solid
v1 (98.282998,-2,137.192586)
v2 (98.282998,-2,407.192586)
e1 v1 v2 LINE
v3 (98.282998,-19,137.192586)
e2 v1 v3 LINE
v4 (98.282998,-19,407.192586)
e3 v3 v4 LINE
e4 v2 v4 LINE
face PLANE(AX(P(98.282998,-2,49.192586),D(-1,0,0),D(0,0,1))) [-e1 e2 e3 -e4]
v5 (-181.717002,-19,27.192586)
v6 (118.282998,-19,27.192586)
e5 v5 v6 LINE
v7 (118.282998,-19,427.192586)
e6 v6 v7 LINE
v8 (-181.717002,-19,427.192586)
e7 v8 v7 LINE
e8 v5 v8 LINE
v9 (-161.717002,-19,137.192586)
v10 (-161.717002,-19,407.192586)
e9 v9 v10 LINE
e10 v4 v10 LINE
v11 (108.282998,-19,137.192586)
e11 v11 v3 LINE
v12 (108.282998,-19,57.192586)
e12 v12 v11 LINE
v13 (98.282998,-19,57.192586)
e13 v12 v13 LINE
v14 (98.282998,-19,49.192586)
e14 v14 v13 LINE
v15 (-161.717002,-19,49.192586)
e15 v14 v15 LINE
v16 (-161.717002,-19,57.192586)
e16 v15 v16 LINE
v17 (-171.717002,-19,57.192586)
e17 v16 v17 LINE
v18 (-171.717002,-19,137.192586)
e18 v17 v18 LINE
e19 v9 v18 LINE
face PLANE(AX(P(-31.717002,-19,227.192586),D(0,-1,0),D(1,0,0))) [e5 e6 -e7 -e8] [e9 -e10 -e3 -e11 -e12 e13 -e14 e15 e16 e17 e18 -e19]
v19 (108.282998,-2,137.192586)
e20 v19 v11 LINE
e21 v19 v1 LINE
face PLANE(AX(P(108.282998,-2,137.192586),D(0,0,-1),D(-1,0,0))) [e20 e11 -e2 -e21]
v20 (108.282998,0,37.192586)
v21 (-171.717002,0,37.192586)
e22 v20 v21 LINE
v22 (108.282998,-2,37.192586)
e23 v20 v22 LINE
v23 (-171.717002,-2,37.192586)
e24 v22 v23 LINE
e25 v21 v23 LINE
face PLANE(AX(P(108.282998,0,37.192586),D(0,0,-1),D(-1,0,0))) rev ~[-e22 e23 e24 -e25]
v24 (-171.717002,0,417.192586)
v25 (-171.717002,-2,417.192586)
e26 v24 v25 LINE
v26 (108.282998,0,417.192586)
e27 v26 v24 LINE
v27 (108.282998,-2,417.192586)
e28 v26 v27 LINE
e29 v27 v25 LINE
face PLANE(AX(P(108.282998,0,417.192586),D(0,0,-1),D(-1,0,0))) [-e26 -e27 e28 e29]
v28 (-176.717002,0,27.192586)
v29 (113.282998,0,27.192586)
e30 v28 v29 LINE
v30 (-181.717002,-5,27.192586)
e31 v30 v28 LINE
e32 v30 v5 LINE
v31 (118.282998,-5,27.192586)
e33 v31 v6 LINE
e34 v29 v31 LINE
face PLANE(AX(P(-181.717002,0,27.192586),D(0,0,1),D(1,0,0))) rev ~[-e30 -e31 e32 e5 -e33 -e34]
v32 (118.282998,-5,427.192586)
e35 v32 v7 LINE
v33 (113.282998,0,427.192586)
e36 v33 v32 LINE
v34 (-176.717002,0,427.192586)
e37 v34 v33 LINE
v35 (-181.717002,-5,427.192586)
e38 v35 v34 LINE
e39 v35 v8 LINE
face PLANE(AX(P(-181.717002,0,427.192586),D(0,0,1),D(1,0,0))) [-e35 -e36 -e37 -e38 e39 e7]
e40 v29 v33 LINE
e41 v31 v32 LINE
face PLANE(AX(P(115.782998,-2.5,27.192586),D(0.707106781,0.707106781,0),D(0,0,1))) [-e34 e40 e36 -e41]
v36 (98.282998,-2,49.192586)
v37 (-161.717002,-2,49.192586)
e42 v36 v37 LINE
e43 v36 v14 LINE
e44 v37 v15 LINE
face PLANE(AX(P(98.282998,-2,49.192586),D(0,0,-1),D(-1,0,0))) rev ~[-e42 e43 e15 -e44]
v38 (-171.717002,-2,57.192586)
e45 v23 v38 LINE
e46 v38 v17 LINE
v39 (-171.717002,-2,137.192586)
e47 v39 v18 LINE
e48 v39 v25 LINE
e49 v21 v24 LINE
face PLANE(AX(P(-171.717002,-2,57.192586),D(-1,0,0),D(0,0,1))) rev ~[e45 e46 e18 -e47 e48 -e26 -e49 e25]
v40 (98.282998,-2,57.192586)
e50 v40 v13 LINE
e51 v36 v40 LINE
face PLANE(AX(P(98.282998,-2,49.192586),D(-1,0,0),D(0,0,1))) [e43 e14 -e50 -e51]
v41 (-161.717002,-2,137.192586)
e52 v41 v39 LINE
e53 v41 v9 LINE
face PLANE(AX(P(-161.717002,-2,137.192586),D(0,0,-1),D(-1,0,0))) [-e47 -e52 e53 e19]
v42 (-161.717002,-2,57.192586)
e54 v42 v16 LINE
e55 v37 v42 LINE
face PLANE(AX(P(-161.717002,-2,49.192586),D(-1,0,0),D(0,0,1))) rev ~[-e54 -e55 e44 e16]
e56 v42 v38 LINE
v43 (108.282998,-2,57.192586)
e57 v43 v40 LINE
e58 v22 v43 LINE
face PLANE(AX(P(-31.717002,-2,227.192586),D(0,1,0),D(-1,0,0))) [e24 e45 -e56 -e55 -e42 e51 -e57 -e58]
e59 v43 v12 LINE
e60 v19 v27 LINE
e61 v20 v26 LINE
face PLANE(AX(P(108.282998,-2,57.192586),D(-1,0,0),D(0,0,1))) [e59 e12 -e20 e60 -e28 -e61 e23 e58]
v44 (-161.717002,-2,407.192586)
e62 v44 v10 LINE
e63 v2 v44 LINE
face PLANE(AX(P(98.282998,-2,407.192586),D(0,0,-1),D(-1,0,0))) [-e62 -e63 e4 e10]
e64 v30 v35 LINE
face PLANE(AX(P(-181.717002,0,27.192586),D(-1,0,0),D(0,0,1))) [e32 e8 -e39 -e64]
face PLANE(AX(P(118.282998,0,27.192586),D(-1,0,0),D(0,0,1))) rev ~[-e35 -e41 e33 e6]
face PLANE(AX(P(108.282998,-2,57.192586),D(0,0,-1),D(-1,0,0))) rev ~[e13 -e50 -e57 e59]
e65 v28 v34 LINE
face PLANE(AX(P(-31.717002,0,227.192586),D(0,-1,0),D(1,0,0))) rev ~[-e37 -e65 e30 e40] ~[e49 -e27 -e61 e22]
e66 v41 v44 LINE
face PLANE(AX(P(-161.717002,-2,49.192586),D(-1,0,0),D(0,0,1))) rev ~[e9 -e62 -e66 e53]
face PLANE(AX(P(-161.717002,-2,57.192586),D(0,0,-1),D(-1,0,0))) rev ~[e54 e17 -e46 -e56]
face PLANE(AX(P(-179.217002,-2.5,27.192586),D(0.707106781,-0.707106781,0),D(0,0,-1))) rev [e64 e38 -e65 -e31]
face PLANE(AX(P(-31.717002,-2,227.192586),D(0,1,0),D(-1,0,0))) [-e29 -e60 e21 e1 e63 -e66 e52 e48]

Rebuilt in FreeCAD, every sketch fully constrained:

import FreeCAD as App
import Part
import Sketcher
from FreeCAD import Vector


def edges_at(feature, points):
    """Names of the edges that pass closest to the given points."""
    edges = feature.Shape.Edges
    near = lambda p: min(range(len(edges)), key=lambda i: edges[i].distToShape(Part.Vertex(*p))[0])
    return sorted({f"Edge{near(p) + 1}" for p in points})

doc = App.newDocument("Part")
body = doc.addObject("PartDesign::Body", "Body")

# Sketch on XZ plane
sketch1 = doc.addObject("Sketcher::SketchObject", "Sketch")
body.addObject(sketch1)
sketch1.AttachmentSupport = (doc.XZ_Plane, [""])
sketch1.MapMode = "FlatFace"
sketch1.addGeometry([
    Part.LineSegment(Vector(-181.717002, 427.192586, 0), Vector(-181.717002, 27.192586, 0)),
    Part.LineSegment(Vector(-181.717002, 27.192586, 0), Vector(118.282998, 27.192586, 0)),
    Part.LineSegment(Vector(118.282998, 27.192586, 0), Vector(118.282998, 427.192586, 0)),
    Part.LineSegment(Vector(118.282998, 427.192586, 0), Vector(-181.717002, 427.192586, 0)),
], False)
sketch1.addConstraint([
    Sketcher.Constraint("Coincident", 0, 2, 1, 1),
    Sketcher.Constraint("Coincident", 1, 2, 2, 1),
    Sketcher.Constraint("Coincident", 2, 2, 3, 1),
    Sketcher.Constraint("Coincident", 3, 2, 0, 1),
    Sketcher.Constraint("Vertical", 0),
    Sketcher.Constraint("Horizontal", 1),
    Sketcher.Constraint("Vertical", 2),
    Sketcher.Constraint("Horizontal", 3),
    Sketcher.Constraint("DistanceX", 1, 1, 1, 2, 300.0),
    Sketcher.Constraint("DistanceY", 0, 2, 0, 1, 400.0),
    Sketcher.Constraint("DistanceX", 0, 2, -1, 1, 181.717002),
    Sketcher.Constraint("DistanceY", -1, 1, 0, 2, 27.192586),
])
pad1 = doc.addObject("PartDesign::Pad", "Pad")
body.addObject(pad1)
pad1.Profile = sketch1
pad1.Length = 19

# Sketch on XZ plane
sketch2 = doc.addObject("Sketcher::SketchObject", "Sketch001")
body.addObject(sketch2)
sketch2.AttachmentSupport = (doc.XZ_Plane, [""])
sketch2.MapMode = "FlatFace"
sketch2.addGeometry([
    Part.LineSegment(Vector(108.282998, 417.192586, 0), Vector(108.282998, 37.192586, 0)),
    Part.LineSegment(Vector(108.282998, 37.192586, 0), Vector(-171.717002, 37.192586, 0)),
    Part.LineSegment(Vector(-171.717002, 37.192586, 0), Vector(-171.717002, 417.192586, 0)),
    Part.LineSegment(Vector(-171.717002, 417.192586, 0), Vector(108.282998, 417.192586, 0)),
], False)
sketch2.addConstraint([
    Sketcher.Constraint("Coincident", 0, 2, 1, 1),
    Sketcher.Constraint("Coincident", 1, 2, 2, 1),
    Sketcher.Constraint("Coincident", 2, 2, 3, 1),
    Sketcher.Constraint("Coincident", 3, 2, 0, 1),
    Sketcher.Constraint("Vertical", 0),
    Sketcher.Constraint("Horizontal", 1),
    Sketcher.Constraint("Vertical", 2),
    Sketcher.Constraint("Horizontal", 3),
    Sketcher.Constraint("DistanceX", 1, 2, 1, 1, 280.0),
    Sketcher.Constraint("DistanceY", 0, 2, 0, 1, 380.0),
    Sketcher.Constraint("DistanceX", -1, 1, 0, 2, 108.282998),
    Sketcher.Constraint("DistanceY", -1, 1, 0, 2, 37.192586),
])
pocket1 = doc.addObject("PartDesign::Pocket", "Pocket")
body.addObject(pocket1)
pocket1.Profile = sketch2
pocket1.Length = 2
pocket1.Reversed = True

# Sketch on XZ plane
sketch3 = doc.addObject("Sketcher::SketchObject", "Sketch002")
body.addObject(sketch3)
sketch3.AttachmentSupport = (doc.XZ_Plane, [""])
sketch3.MapMode = "FlatFace"
sketch3.AttachmentOffset = App.Placement(Vector(0, 0, 2), App.Rotation())
sketch3.addGeometry([
    Part.LineSegment(Vector(98.282998, 407.192586, 0), Vector(98.282998, 49.192586, 0)),
    Part.LineSegment(Vector(98.282998, 49.192586, 0), Vector(-161.717002, 49.192586, 0)),
    Part.LineSegment(Vector(-161.717002, 49.192586, 0), Vector(-161.717002, 407.192586, 0)),
    Part.LineSegment(Vector(-161.717002, 407.192586, 0), Vector(98.282998, 407.192586, 0)),
], False)
sketch3.addConstraint([
    Sketcher.Constraint("Coincident", 0, 2, 1, 1),
    Sketcher.Constraint("Coincident", 1, 2, 2, 1),
    Sketcher.Constraint("Coincident", 2, 2, 3, 1),
    Sketcher.Constraint("Coincident", 3, 2, 0, 1),
    Sketcher.Constraint("Vertical", 0),
    Sketcher.Constraint("Horizontal", 1),
    Sketcher.Constraint("Vertical", 2),
    Sketcher.Constraint("Horizontal", 3),
    Sketcher.Constraint("DistanceX", 1, 2, 1, 1, 260.0),
    Sketcher.Constraint("DistanceY", 0, 2, 0, 1, 358.0),
    Sketcher.Constraint("DistanceX", -1, 1, 0, 2, 98.282998),
    Sketcher.Constraint("DistanceY", -1, 1, 0, 2, 49.192586),
])
pocket2 = doc.addObject("PartDesign::Pocket", "Pocket001")
body.addObject(pocket2)
pocket2.Profile = sketch3
pocket2.Length = 17
pocket2.Reversed = True
doc.recompute()

chamfer = doc.addObject("PartDesign::Chamfer", "Chamfer")
body.addObject(chamfer)
chamfer.Base = (pocket2, edges_at(pocket2, [(118.283, 0, 227.193), (-181.717, 0, 227.193)]))
chamfer.Size = 5

# Sketch on XZ plane
sketch4 = doc.addObject("Sketcher::SketchObject", "Sketch003")
body.addObject(sketch4)
sketch4.AttachmentSupport = (doc.XZ_Plane, [""])
sketch4.MapMode = "FlatFace"
sketch4.AttachmentOffset = App.Placement(Vector(0, 0, 2), App.Rotation())
sketch4.addGeometry([
    Part.LineSegment(Vector(108.282998, 137.192586, 0), Vector(108.282998, 57.192586, 0)),
    Part.LineSegment(Vector(108.282998, 57.192586, 0), Vector(98.282998, 57.192586, 0)),
    Part.LineSegment(Vector(98.282998, 57.192586, 0), Vector(98.282998, 137.192586, 0)),
    Part.LineSegment(Vector(98.282998, 137.192586, 0), Vector(108.282998, 137.192586, 0)),
], False)
sketch4.addConstraint([
    Sketcher.Constraint("Coincident", 0, 2, 1, 1),
    Sketcher.Constraint("Coincident", 1, 2, 2, 1),
    Sketcher.Constraint("Coincident", 2, 2, 3, 1),
    Sketcher.Constraint("Coincident", 3, 2, 0, 1),
    Sketcher.Constraint("Vertical", 0),
    Sketcher.Constraint("Horizontal", 1),
    Sketcher.Constraint("Vertical", 2),
    Sketcher.Constraint("Horizontal", 3),
    Sketcher.Constraint("DistanceX", 1, 2, 1, 1, 10.0),
    Sketcher.Constraint("DistanceY", 0, 2, 0, 1, 80.0),
    Sketcher.Constraint("DistanceX", -1, 1, 0, 2, 108.282998),
    Sketcher.Constraint("DistanceY", -1, 1, 0, 2, 57.192586),
])
pocket3 = doc.addObject("PartDesign::Pocket", "Pocket002")
body.addObject(pocket3)
pocket3.Profile = sketch4
pocket3.Length = 17
pocket3.Reversed = True

# Sketch on XZ plane
sketch5 = doc.addObject("Sketcher::SketchObject", "Sketch004")
body.addObject(sketch5)
sketch5.AttachmentSupport = (doc.XZ_Plane, [""])
sketch5.MapMode = "FlatFace"
sketch5.AttachmentOffset = App.Placement(Vector(0, 0, 2), App.Rotation())
sketch5.addGeometry([
    Part.LineSegment(Vector(-161.717002, 137.192586, 0), Vector(-161.717002, 57.192586, 0)),
    Part.LineSegment(Vector(-161.717002, 57.192586, 0), Vector(-171.717002, 57.192586, 0)),
    Part.LineSegment(Vector(-171.717002, 57.192586, 0), Vector(-171.717002, 137.192586, 0)),
    Part.LineSegment(Vector(-171.717002, 137.192586, 0), Vector(-161.717002, 137.192586, 0)),
], False)
sketch5.addConstraint([
    Sketcher.Constraint("Coincident", 0, 2, 1, 1),
    Sketcher.Constraint("Coincident", 1, 2, 2, 1),
    Sketcher.Constraint("Coincident", 2, 2, 3, 1),
    Sketcher.Constraint("Coincident", 3, 2, 0, 1),
    Sketcher.Constraint("Vertical", 0),
    Sketcher.Constraint("Horizontal", 1),
    Sketcher.Constraint("Vertical", 2),
    Sketcher.Constraint("Horizontal", 3),
    Sketcher.Constraint("DistanceX", 1, 2, 1, 1, 10.0),
    Sketcher.Constraint("DistanceY", 0, 2, 0, 1, 80.0),
    Sketcher.Constraint("DistanceX", 0, 2, -1, 1, 161.717002),
    Sketcher.Constraint("DistanceY", -1, 1, 0, 2, 57.192586),
])
pocket4 = doc.addObject("PartDesign::Pocket", "Pocket003")
body.addObject(pocket4)
pocket4.Profile = sketch5
pocket4.Length = 17
pocket4.Reversed = True

doc.recompute()
